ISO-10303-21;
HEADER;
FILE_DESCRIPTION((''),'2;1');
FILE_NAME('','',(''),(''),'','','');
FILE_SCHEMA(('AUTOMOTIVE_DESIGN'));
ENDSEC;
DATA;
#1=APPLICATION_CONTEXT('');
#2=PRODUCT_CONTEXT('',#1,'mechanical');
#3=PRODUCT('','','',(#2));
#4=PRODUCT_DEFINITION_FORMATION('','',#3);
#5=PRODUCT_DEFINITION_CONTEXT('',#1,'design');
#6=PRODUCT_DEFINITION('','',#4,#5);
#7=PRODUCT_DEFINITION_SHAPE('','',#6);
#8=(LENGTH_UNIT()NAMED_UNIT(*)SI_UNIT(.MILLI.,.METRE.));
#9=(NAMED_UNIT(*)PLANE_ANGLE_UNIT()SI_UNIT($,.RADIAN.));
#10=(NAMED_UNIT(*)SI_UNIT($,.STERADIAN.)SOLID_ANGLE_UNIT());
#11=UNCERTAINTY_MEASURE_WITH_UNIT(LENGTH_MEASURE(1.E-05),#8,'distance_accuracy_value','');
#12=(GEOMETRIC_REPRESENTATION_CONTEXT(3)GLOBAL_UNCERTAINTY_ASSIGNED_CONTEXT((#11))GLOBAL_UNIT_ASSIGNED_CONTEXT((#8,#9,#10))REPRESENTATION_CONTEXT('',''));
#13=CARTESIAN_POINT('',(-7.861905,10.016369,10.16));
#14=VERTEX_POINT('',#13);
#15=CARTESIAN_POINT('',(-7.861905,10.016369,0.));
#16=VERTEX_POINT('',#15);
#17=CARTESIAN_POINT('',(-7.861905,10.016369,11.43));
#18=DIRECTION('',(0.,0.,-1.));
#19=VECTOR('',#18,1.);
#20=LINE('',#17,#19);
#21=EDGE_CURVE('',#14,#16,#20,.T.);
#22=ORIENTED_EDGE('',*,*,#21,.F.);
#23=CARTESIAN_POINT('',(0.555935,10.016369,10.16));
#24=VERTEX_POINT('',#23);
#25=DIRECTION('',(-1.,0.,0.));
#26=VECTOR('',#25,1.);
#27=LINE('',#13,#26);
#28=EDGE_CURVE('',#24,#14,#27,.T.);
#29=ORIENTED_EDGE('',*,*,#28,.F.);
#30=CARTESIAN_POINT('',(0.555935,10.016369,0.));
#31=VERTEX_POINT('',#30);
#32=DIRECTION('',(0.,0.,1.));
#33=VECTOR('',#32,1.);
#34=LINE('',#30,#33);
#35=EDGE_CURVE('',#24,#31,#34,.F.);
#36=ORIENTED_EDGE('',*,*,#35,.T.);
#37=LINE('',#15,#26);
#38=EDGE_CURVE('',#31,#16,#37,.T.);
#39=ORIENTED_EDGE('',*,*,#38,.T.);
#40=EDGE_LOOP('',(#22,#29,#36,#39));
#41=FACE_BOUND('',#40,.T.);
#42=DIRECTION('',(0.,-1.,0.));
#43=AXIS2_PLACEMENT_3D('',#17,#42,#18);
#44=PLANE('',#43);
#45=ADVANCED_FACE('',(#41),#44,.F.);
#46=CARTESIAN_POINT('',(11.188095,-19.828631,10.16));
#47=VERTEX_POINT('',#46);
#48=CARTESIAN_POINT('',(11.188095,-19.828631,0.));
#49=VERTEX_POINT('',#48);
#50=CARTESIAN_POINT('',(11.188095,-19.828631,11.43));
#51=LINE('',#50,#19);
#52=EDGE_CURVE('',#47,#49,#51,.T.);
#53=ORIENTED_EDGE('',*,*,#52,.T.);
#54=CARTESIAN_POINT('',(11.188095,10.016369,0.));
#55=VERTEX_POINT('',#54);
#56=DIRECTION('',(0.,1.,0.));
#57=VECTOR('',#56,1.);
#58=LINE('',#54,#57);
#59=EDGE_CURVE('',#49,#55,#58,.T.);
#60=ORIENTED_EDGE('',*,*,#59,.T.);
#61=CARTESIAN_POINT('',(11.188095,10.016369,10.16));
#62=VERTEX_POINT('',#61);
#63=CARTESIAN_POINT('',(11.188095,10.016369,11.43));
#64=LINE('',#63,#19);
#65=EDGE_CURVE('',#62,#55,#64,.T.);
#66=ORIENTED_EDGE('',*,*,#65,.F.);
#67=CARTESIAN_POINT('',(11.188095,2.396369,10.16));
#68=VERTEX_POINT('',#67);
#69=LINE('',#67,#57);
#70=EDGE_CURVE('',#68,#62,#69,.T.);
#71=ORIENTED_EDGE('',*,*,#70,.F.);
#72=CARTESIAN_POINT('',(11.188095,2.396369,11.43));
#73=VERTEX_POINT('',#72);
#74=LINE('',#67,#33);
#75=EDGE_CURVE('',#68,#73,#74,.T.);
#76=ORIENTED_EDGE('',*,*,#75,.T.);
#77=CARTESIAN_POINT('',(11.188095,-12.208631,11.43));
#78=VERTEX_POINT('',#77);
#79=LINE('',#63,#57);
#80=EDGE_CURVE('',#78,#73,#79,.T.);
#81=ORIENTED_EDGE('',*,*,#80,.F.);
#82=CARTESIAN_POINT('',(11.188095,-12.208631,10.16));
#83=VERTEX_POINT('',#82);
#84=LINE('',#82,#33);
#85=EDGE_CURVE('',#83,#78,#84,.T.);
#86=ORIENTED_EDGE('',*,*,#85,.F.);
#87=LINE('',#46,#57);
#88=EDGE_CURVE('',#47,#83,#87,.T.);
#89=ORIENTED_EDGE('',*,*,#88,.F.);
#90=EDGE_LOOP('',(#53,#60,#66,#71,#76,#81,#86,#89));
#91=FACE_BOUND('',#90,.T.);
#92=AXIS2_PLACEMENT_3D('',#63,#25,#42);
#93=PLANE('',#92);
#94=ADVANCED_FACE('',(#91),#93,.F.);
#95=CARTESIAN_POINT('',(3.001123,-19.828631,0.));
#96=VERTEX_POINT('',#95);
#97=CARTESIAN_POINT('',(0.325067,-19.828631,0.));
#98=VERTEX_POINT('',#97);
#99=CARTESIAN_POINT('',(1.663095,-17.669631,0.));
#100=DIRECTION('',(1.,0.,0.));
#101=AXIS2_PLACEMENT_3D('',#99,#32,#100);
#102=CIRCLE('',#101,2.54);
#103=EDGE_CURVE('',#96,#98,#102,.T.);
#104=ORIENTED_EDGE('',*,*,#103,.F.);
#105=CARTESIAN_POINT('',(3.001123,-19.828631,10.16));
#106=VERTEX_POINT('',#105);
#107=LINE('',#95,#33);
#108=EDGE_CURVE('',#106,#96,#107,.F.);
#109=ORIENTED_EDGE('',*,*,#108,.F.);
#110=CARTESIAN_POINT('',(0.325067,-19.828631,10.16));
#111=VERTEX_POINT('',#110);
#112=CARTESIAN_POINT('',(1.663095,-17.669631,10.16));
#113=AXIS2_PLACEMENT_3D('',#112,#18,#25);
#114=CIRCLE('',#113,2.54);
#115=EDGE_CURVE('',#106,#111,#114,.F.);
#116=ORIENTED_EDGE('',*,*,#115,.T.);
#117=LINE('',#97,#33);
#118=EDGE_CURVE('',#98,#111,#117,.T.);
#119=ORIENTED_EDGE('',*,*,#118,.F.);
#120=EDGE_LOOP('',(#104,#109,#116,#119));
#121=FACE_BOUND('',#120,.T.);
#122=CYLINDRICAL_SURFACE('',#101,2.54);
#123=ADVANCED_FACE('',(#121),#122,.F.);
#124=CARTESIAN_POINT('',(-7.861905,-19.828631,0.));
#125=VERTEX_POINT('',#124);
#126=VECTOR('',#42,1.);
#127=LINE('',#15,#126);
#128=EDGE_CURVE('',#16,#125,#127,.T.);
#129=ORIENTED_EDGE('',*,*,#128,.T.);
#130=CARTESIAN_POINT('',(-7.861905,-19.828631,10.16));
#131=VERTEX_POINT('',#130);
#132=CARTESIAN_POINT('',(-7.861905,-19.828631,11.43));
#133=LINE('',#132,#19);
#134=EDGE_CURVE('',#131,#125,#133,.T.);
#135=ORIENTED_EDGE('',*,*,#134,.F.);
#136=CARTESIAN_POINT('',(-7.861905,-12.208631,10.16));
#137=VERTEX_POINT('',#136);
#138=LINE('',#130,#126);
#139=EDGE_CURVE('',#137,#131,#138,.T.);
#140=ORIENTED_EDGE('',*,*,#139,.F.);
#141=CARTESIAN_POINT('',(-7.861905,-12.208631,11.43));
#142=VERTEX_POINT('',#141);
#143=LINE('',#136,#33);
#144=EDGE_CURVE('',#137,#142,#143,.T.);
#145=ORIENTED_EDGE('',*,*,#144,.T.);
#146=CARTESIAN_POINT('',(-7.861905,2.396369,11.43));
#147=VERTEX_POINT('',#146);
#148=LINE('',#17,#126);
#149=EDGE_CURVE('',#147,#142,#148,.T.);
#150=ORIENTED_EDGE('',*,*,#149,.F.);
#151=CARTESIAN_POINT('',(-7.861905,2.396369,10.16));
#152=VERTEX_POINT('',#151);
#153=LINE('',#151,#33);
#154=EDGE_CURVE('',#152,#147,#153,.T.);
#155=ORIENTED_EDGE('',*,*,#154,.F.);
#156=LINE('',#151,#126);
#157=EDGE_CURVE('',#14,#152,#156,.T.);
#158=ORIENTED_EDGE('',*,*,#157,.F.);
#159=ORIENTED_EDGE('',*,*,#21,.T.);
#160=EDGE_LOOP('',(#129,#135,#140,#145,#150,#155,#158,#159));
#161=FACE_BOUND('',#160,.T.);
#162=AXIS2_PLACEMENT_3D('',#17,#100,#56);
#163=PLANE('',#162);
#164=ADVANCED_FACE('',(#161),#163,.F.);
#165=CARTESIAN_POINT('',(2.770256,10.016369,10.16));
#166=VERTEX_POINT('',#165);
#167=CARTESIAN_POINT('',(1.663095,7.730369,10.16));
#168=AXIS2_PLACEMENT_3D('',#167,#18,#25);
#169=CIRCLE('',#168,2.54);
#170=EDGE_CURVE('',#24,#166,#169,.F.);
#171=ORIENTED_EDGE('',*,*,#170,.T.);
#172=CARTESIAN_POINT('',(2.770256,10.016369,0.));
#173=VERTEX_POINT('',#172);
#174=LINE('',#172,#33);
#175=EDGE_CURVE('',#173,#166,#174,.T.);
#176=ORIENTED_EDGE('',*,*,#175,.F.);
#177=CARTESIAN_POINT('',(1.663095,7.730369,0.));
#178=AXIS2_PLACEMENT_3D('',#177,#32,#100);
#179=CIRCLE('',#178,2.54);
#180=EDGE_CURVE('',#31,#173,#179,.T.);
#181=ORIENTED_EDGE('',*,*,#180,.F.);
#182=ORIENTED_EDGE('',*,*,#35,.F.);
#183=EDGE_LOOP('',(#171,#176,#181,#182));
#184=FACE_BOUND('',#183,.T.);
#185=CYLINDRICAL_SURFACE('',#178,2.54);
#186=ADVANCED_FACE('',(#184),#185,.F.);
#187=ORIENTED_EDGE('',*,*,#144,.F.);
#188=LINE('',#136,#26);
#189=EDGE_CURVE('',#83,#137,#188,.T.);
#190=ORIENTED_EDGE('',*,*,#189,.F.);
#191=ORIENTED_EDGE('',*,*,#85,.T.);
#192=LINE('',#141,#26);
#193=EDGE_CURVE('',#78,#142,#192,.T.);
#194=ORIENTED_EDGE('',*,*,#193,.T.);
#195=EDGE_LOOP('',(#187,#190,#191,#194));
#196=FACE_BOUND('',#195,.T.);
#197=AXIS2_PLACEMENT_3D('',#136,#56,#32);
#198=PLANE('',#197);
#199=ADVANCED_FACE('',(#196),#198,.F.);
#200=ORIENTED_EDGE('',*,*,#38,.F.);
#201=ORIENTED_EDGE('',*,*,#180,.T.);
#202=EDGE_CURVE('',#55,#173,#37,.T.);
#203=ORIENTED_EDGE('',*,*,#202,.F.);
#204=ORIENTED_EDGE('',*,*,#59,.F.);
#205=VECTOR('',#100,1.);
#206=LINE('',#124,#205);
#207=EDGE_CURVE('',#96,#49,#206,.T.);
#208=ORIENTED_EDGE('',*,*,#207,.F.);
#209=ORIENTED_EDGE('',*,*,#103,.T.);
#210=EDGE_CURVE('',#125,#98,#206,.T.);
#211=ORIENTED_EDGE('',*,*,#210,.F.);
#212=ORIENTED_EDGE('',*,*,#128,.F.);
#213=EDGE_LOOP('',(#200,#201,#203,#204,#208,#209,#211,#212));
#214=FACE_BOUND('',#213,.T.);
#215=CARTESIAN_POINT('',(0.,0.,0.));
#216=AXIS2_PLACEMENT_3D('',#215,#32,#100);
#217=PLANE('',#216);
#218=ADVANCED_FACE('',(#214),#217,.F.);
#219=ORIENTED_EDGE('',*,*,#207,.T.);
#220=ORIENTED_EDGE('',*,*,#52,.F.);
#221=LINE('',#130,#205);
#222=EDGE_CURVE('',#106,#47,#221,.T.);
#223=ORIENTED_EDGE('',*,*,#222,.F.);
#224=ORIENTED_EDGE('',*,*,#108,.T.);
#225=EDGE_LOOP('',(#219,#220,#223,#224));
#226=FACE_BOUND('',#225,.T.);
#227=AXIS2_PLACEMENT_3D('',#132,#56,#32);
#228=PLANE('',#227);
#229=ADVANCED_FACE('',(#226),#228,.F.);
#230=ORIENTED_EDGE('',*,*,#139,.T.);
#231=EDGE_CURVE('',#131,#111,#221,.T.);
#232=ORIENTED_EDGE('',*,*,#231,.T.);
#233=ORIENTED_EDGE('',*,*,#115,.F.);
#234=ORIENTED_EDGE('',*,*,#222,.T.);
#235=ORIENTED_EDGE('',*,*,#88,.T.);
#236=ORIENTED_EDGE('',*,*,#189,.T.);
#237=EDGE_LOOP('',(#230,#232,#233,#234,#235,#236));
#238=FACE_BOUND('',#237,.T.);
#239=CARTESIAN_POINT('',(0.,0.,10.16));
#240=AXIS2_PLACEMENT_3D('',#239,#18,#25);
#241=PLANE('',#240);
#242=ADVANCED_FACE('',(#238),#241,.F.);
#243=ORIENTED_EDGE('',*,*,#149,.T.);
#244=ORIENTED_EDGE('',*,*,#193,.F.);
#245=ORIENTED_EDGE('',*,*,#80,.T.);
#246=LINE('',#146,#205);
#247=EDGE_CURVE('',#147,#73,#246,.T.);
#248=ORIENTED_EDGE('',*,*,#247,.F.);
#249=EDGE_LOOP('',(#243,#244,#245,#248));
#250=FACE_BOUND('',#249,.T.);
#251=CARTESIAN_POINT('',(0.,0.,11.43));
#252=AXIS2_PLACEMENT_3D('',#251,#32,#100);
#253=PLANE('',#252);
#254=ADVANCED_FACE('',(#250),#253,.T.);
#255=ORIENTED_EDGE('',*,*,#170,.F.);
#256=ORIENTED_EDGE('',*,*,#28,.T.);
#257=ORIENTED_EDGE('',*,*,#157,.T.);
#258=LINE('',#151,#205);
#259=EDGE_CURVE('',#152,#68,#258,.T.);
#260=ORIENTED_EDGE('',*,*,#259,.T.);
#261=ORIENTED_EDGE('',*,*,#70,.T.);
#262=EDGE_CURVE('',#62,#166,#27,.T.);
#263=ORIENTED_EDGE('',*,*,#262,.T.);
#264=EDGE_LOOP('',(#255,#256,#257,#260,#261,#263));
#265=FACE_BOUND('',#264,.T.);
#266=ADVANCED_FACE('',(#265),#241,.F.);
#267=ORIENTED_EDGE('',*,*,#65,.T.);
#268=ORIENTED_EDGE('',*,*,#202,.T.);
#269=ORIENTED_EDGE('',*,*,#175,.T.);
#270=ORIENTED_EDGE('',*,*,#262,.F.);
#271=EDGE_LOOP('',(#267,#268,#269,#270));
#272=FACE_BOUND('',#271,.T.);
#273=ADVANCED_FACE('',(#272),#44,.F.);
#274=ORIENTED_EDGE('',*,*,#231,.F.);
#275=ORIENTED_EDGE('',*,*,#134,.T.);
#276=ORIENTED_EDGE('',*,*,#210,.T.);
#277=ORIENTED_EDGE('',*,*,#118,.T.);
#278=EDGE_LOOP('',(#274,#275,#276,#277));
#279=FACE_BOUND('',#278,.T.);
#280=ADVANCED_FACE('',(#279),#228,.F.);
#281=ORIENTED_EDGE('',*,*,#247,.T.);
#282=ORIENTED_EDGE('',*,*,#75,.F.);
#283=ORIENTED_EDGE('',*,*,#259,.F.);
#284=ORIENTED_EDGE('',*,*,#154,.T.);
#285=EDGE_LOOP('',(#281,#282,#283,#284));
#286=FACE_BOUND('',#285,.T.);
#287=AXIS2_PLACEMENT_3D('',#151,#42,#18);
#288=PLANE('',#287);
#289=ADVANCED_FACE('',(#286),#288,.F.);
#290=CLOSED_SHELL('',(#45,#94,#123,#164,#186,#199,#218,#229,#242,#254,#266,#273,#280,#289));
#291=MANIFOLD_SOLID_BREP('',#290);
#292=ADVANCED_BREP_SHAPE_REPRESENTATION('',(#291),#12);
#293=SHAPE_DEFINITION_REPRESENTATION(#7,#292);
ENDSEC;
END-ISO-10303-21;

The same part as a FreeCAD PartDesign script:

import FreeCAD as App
import Part
import Sketcher
Q = App.Units.Quantity

doc = App.newDocument("Part")
params = doc.addObject("Spreadsheet::Sheet", "Params")
for row, (alias, value) in enumerate([
    ("sketch1_width", "0.75 in"),
    ("sketch1_height", "1.175 in"),
    ("pad1_length", "0.45 in"),
    ("sketch2_diameter", "0.2 in"),
    ("pocket1_length", "0.45 in"),
    ("sketch3_height", "0.3 in"),
    ("sketch3_width", "0.75 in"),
    ("pocket2_length", "0.05 in"),
], start=1):
    params.set(f"A{row}", alias)
    params.set(f"B{row}", "=" + value)
    params.setAlias(f"B{row}", alias)

body = doc.addObject("PartDesign::Body", "Body")

sketch1 = body.newObject("Sketcher::SketchObject", "Sketch")
sketch1.AttachmentSupport = (doc.getObject("XY_Plane"), [""])
sketch1.MapMode = "FlatFace"
sketch1.addGeometry([
    Part.LineSegment(App.Vector(-8, 10, 0), App.Vector(-8, -20, 0)),
    Part.LineSegment(App.Vector(-8, -20, 0), App.Vector(11, -20, 0)),
    Part.LineSegment(App.Vector(11, -20, 0), App.Vector(11, 10, 0)),
    Part.LineSegment(App.Vector(11, 10, 0), App.Vector(-8, 10, 0)),
], False)
sketch1.addConstraint([
    Sketcher.Constraint("Coincident", 0, 2, 1, 1),
    Sketcher.Constraint("Coincident", 1, 2, 2, 1),
    Sketcher.Constraint("Coincident", 2, 2, 3, 1),
    Sketcher.Constraint("Coincident", 3, 2, 0, 1),
    Sketcher.Constraint("Vertical", 0),
    Sketcher.Constraint("Horizontal", 1),
    Sketcher.Constraint("Vertical", 2),
    Sketcher.Constraint("Horizontal", 3),
    Sketcher.Constraint("DistanceX", 1, 1, 1, 2, Q("0.75 in")),
    Sketcher.Constraint("DistanceY", 0, 2, 0, 1, Q("1.175 in")),
    Sketcher.Constraint("DistanceY", 0, 2, -1, 1, 19.828631),
    Sketcher.Constraint("DistanceX", 0, 2, -1, 1, 7.861905),
])
sketch1.setExpression("Constraints[8]", "Params.sketch1_width")
sketch1.setExpression("Constraints[9]", "Params.sketch1_height")
pad1 = body.newObject("PartDesign::Pad", "Pad")
pad1.Profile = sketch1
pad1.setExpression("Length", "Params.pad1_length")

sketch2 = body.newObject("Sketcher::SketchObject", "Sketch001")
sketch2.AttachmentSupport = (doc.getObject("XY_Plane"), [""])
sketch2.MapMode = "FlatFace"
sketch2.AttachmentOffset = App.Placement(App.Vector(0, 0, 0.45 * 25.4), App.Rotation())
sketch2.addGeometry([
    Part.Circle(App.Vector(1.7, 7.7, 0), App.Vector(0, 0, 1), 2.5),
    Part.Circle(App.Vector(1.7, -17.7, 0), App.Vector(0, 0, 1), 2.5),
], False)
sketch2.addConstraint([
    Sketcher.Constraint("Equal", 0, 1),
    Sketcher.Constraint("Vertical", 0, 3, 1, 3),
    Sketcher.Constraint("Diameter", 0, Q("0.2 in")),
    Sketcher.Constraint("DistanceY", 1, 3, 0, 3, Q("1 in")),
    Sketcher.Constraint("DistanceY", -1, 1, 0, 3, 7.730369),
    Sketcher.Constraint("DistanceX", -1, 1, 0, 3, 1.663095),
])
sketch2.setExpression("Constraints[2]", "Params.sketch2_diameter")
pocket1 = body.newObject("PartDesign::Pocket", "Pocket")
pocket1.Profile = sketch2
pocket1.setExpression("Length", "Params.pocket1_length")

sketch3 = body.newObject("Sketcher::SketchObject", "Sketch002")
sketch3.AttachmentSupport = (doc.getObject("XY_Plane"), [""])
sketch3.MapMode = "FlatFace"
sketch3.AttachmentOffset = App.Placement(App.Vector(0, 0, 0.45 * 25.4), App.Rotation())
sketch3.addGeometry([
    Part.LineSegment(App.Vector(-8, 10, 0), App.Vector(-8, 2, 0)),
    Part.LineSegment(App.Vector(-8, 2, 0), App.Vector(11, 2, 0)),
    Part.LineSegment(App.Vector(11, 2, 0), App.Vector(11, 10, 0)),
    Part.LineSegment(App.Vector(11, 10, 0), App.Vector(-8, 10, 0)),
    Part.LineSegment(App.Vector(-8, -12, 0), App.Vector(-8, -20, 0)),
    Part.LineSegment(App.Vector(-8, -20, 0), App.Vector(11, -20, 0)),
    Part.LineSegment(App.Vector(11, -20, 0), App.Vector(11, -12, 0)),
    Part.LineSegment(App.Vector(11, -12, 0), App.Vector(-8, -12, 0)),
], False)
sketch3.addConstraint([
    Sketcher.Constraint("Coincident", 0, 2, 1, 1),
    Sketcher.Constraint("Coincident", 1, 2, 2, 1),
    Sketcher.Constraint("Coincident", 2, 2, 3, 1),
    Sketcher.Constraint("Coincident", 3, 2, 0, 1),
    Sketcher.Constraint("Coincident", 4, 2, 5, 1),
    Sketcher.Constraint("Coincident", 5, 2, 6, 1),
    Sketcher.Constraint("Coincident", 6, 2, 7, 1),
    Sketcher.Constraint("Coincident", 7, 2, 4, 1),
    Sketcher.Constraint("Vertical", 0),
    Sketcher.Constraint("Horizontal", 1),
    Sketcher.Constraint("Vertical", 2),
    Sketcher.Constraint("Horizontal", 3),
    Sketcher.Constraint("Vertical", 4),
    Sketcher.Constraint("Horizontal", 5),
    Sketcher.Constraint("Vertical", 6),
    Sketcher.Constraint("Horizontal", 7),
    Sketcher.Constraint("Vertical", 3, 2, 4, 2),
    Sketcher.Constraint("Vertical", 2, 2, 5, 2),
    Sketcher.Constraint("Equal", 2, 4),
    Sketcher.Constraint("DistanceY", 0, 2, 0, 1, Q("0.3 in")),
    Sketcher.Constraint("DistanceX", 1, 1, 1, 2, Q("0.75 in")),
    Sketcher.Constraint("DistanceY", 4, 2, 0, 2, Q("0.875 in")),
    Sketcher.Constraint("DistanceY", -1, 1, 0, 2, 2.396369),
    Sketcher.Constraint("DistanceX", 0, 2, -1, 1, 7.861905),
])
sketch3.setExpression("Constraints[19]", "Params.sketch3_height")
sketch3.setExpression("Constraints[20]", "Params.sketch3_width")
pocket2 = body.newObject("PartDesign::Pocket", "Pocket001")
pocket2.Profile = sketch3
pocket2.setExpression("Length", "Params.pocket2_length")

doc.recompute()
